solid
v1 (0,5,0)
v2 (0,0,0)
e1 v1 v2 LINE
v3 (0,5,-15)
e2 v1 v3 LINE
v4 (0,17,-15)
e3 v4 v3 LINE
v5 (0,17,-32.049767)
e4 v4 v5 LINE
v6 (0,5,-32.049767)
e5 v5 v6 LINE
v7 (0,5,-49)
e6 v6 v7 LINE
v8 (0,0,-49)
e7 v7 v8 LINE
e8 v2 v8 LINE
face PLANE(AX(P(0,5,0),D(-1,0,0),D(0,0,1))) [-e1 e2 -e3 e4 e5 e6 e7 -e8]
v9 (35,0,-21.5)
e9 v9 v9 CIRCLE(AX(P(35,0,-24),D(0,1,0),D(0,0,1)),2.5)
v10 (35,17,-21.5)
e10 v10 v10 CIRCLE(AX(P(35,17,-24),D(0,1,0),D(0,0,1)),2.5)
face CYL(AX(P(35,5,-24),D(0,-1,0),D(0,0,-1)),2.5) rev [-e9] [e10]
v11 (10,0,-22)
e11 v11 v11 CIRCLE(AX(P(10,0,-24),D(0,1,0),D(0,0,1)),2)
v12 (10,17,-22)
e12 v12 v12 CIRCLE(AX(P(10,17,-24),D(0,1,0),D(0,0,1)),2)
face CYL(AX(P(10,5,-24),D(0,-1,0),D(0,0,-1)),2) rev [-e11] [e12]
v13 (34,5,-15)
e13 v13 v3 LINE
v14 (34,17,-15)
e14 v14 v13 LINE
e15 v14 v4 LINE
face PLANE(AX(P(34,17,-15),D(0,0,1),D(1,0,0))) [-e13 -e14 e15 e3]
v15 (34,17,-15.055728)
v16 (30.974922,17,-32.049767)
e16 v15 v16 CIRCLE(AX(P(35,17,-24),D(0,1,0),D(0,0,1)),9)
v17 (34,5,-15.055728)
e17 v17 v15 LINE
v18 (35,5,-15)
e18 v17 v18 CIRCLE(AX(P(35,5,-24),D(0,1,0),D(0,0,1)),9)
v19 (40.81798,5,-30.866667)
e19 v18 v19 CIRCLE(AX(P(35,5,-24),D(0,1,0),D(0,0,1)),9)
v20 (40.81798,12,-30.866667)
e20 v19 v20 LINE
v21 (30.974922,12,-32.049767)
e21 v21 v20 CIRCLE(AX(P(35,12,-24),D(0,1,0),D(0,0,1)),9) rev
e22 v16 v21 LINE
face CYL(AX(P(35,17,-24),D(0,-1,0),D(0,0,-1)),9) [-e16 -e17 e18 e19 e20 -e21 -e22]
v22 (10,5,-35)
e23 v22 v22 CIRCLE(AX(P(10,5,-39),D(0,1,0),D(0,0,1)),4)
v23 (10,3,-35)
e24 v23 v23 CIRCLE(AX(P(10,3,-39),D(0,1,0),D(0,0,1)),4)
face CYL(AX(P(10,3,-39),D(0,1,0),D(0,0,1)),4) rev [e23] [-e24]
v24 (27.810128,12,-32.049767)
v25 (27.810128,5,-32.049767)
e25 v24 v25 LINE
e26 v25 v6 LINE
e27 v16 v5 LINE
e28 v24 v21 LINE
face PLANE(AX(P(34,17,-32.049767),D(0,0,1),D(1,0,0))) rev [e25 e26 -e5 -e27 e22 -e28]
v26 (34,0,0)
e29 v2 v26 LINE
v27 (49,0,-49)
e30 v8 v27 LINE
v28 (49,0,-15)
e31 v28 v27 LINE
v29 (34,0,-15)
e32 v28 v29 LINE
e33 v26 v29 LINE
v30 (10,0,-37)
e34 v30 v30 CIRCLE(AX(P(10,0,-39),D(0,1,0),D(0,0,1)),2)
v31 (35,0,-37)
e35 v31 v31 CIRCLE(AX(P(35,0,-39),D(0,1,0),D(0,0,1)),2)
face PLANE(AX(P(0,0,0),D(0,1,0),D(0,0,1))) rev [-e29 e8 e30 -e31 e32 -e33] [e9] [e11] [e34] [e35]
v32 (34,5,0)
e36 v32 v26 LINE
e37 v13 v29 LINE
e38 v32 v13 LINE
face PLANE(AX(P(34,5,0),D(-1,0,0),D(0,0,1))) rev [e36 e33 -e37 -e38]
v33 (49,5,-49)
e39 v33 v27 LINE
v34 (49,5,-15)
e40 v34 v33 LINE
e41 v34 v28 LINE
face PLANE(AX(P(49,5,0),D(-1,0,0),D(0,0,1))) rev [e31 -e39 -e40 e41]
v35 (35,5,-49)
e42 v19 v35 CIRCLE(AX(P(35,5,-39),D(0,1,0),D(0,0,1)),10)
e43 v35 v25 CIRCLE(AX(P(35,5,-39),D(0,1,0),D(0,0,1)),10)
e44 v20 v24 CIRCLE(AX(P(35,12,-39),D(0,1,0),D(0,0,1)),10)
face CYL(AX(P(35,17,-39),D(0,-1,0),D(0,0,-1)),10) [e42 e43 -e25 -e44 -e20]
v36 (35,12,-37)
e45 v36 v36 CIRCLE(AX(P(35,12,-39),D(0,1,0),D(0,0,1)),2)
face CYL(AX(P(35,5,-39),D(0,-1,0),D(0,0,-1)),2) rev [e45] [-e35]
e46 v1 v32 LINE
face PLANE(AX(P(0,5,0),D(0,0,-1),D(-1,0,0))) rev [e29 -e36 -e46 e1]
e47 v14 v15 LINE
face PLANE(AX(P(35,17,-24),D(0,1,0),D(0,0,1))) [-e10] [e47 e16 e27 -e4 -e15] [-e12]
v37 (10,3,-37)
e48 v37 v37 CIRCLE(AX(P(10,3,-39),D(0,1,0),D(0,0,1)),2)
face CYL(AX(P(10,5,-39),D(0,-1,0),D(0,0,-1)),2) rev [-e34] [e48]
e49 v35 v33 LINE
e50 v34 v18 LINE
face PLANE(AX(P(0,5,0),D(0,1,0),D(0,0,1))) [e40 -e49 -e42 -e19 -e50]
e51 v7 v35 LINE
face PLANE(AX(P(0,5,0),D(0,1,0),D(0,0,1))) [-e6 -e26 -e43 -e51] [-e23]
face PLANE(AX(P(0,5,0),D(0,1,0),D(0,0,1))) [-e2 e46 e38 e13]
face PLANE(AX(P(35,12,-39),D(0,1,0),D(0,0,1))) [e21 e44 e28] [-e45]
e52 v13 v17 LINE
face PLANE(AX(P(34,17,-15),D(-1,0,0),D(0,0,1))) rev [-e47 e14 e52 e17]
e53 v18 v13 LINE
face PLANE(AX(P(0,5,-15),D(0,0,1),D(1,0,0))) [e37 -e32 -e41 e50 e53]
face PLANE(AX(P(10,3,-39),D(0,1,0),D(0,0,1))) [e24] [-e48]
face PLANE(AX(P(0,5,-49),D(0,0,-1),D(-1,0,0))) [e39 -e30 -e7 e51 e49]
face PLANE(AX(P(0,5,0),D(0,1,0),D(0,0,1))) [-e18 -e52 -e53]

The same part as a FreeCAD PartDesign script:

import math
import FreeCAD as App
import Part
import Sketcher
from FreeCAD import Vector
Q = App.Units.Quantity


def add_polygon(sketch, points):
    """Adds a closed chain of lines whose ends are joined by coincident constraints."""
    first, n = sketch.GeometryCount, len(points)
    for a, b in zip(points, points[1:] + points[:1]):
        sketch.addGeometry(Part.LineSegment(App.Vector(*a, 0), App.Vector(*b, 0)), False)
    for i in range(n):
        sketch.addConstraint(Sketcher.Constraint("Coincident", first + i, 2, first + (i + 1) % n, 1))

doc = App.newDocument("Part")
body = doc.addObject("PartDesign::Body", "Body")

# Sketch on XZ plane
sketch1 = body.newObject("Sketcher::SketchObject", "Sketch")
sketch1.AttachmentSupport = (doc.getObject("XZ_Plane"), [""])
sketch1.MapMode = "FlatFace"
add_polygon(sketch1, [(0, -49), (0, 0), (34, 0), (34, -15), (49, -15), (49, -49)])  # lines 0-5
sketch1.addGeometry(Part.Circle(Vector(10, -24, 0), Vector(0, 0, 1), 2), False)  # 6
sketch1.addGeometry(Part.Circle(Vector(35, -24, 0), Vector(0, 0, 1), 2.5), False)  # 7
sketch1.addGeometry(Part.Circle(Vector(10, -39, 0), Vector(0, 0, 1), 2), False)  # 8
sketch1.addGeometry(Part.Circle(Vector(35, -39, 0), Vector(0, 0, 1), 2), False)  # 9
sketch1.addConstraint(Sketcher.Constraint("Vertical", 0))
sketch1.addConstraint(Sketcher.Constraint("Horizontal", 1))
sketch1.addConstraint(Sketcher.Constraint("Vertical", 2))
sketch1.addConstraint(Sketcher.Constraint("Horizontal", 3))
sketch1.addConstraint(Sketcher.Constraint("Vertical", 4))
sketch1.addConstraint(Sketcher.Constraint("Horizontal", 5))
sketch1.addConstraint(Sketcher.Constraint("Coincident", 0, 2, -1, 1))
sketch1.addConstraint(Sketcher.Constraint("Equal", 6, 8))
sketch1.addConstraint(Sketcher.Constraint("Equal", 8, 9))
sketch1.addConstraint(Sketcher.Constraint("Horizontal", 6, 3, 7, 3))
sketch1.addConstraint(Sketcher.Constraint("Horizontal", 8, 3, 9, 3))
sketch1.addConstraint(Sketcher.Constraint("Vertical", 6, 3, 8, 3))
sketch1.addConstraint(Sketcher.Constraint("Vertical", 7, 3, 9, 3))
sketch1.addConstraint(Sketcher.Constraint("Equal", 5, 0))
sketch1.addConstraint(Sketcher.Constraint("Equal", 3, 2))
sketch1.addConstraint(Sketcher.Constraint("Diameter", 6, Q("4 mm")))
sketch1.addConstraint(Sketcher.Constraint("Diameter", 7, Q("5 mm")))
sketch1.addConstraint(Sketcher.Constraint("DistanceX", 1, 1, 1, 2, Q("34 mm")))
sketch1.addConstraint(Sketcher.Constraint("DistanceX", 3, 1, 3, 2, Q("15 mm")))
sketch1.addConstraint(Sketcher.Constraint("DistanceX", -1, 1, 6, 3, Q("10 mm")))
sketch1.addConstraint(Sketcher.Constraint("DistanceY", 6, 3, -1, 1, Q("24 mm")))
sketch1.addConstraint(Sketcher.Constraint("DistanceX", -1, 1, 7, 3, Q("35 mm")))
sketch1.addConstraint(Sketcher.Constraint("DistanceY", 8, 3, -1, 1, Q("39 mm")))
pad1 = body.newObject("PartDesign::Pad", "Pad")
pad1.Profile = sketch1
pad1.Length = 5
pad1.Reversed = True

# Sketch on XZ plane
sketch2 = body.newObject("Sketcher::SketchObject", "Sketch001")
sketch2.AttachmentSupport = (doc.getObject("XZ_Plane"), [""])
sketch2.MapMode = "FlatFace"
sketch2.AttachmentOffset = App.Placement(Vector(0, 0, -5), App.Rotation())
sketch2.addGeometry(Part.Circle(Vector(10, -39, 0), Vector(0, 0, 1), 4), False)
sketch2.addConstraint(Sketcher.Constraint("Diameter", 0, Q("8 mm")))
sketch2.addConstraint(Sketcher.Constraint("DistanceX", -1, 1, 0, 3, Q("10 mm")))
sketch2.addConstraint(Sketcher.Constraint("DistanceY", 0, 3, -1, 1, Q("39 mm")))
pocket1 = body.newObject("PartDesign::Pocket", "Pocket")
pocket1.Profile = sketch2
pocket1.Length = 2
pocket1.Reversed = True

# Sketch on XZ plane
sketch3 = body.newObject("Sketcher::SketchObject", "Sketch002")
sketch3.AttachmentSupport = (doc.getObject("XZ_Plane"), [""])
sketch3.MapMode = "FlatFace"
sketch3.AttachmentOffset = App.Placement(Vector(0, 0, -5), App.Rotation())
sketch3.addGeometry(Part.Circle(Vector(35, -39, 0), Vector(0, 0, 1), 10), False)
sketch3.addConstraint(Sketcher.Constraint("Diameter", 0, Q("20 mm")))
sketch3.addConstraint(Sketcher.Constraint("DistanceX", -1, 1, 0, 3, Q("35 mm")))
sketch3.addConstraint(Sketcher.Constraint("DistanceY", 0, 3, -1, 1, Q("39 mm")))
pad2 = body.newObject("PartDesign::Pad", "Pad001")
pad2.Profile = sketch3
pad2.Length = 12
pad2.Reversed = True

# Sketch on XZ plane
sketch4 = body.newObject("Sketcher::SketchObject", "Sketch003")
sketch4.AttachmentSupport = (doc.getObject("XZ_Plane"), [""])
sketch4.MapMode = "FlatFace"
sketch4.AttachmentOffset = App.Placement(Vector(0, 0, -5), App.Rotation())
sketch4.addGeometry(Part.Circle(Vector(35, -39, 0), Vector(0, 0, 1), 2), False)
sketch4.addConstraint(Sketcher.Constraint("Diameter", 0, Q("4 mm")))
sketch4.addConstraint(Sketcher.Constraint("DistanceX", -1, 1, 0, 3, Q("35 mm")))
sketch4.addConstraint(Sketcher.Constraint("DistanceY", 0, 3, -1, 1, Q("39 mm")))
pocket2 = body.newObject("PartDesign::Pocket", "Pocket001")
pocket2.Profile = sketch4
pocket2.Length = 12

# Sketch on XZ plane
sketch5 = body.newObject("Sketcher::SketchObject", "Sketch004")
sketch5.AttachmentSupport = (doc.getObject("XZ_Plane"), [""])
sketch5.MapMode = "FlatFace"
sketch5.AttachmentOffset = App.Placement(Vector(0, 0, -17), App.Rotation())
sketch5.addGeometry(Part.Circle(Vector(35, -39, 0), Vector(0, 0, 1), 10), False)
sketch5.addGeometry(Part.Circle(Vector(35, -39, 0), Vector(0, 0, 1), 2), False)
sketch5.addConstraint(Sketcher.Constraint("Coincident", 1, 3, 0, 3))
sketch5.addConstraint(Sketcher.Constraint("Diameter", 0, Q("20 mm")))
sketch5.addConstraint(Sketcher.Constraint("Diameter", 1, Q("4 mm")))
sketch5.addConstraint(Sketcher.Constraint("DistanceX", -1, 1, 0, 3, Q("35 mm")))
sketch5.addConstraint(Sketcher.Constraint("DistanceY", 0, 3, -1, 1, Q("39 mm")))
pocket3 = body.newObject("PartDesign::Pocket", "Pocket002")
pocket3.Profile = sketch5
pocket3.Length = 5
pocket3.Reversed = True

# Sketch on XZ plane
sketch6 = body.newObject("Sketcher::SketchObject", "Sketch005")
sketch6.AttachmentSupport = (doc.getObject("XZ_Plane"), [""])
sketch6.MapMode = "FlatFace"
sketch6.AttachmentOffset = App.Placement(Vector(0, 0, -5), App.Rotation())
sketch6.addGeometry(Part.Circle(Vector(35, -24, 0), Vector(0, 0, 1), 9), False)
sketch6.addGeometry(Part.Circle(Vector(35, -24, 0), Vector(0, 0, 1), 2.5), False)
sketch6.addConstraint(Sketcher.Constraint("Coincident", 1, 3, 0, 3))
sketch6.addConstraint(Sketcher.Constraint("Diameter", 0, Q("18 mm")))
sketch6.addConstraint(Sketcher.Constraint("Diameter", 1, Q("5 mm")))
sketch6.addConstraint(Sketcher.Constraint("DistanceX", -1, 1, 0, 3, Q("35 mm")))
sketch6.addConstraint(Sketcher.Constraint("DistanceY", 0, 3, -1, 1, Q("24 mm")))
pad3 = body.newObject("PartDesign::Pad", "Pad002")
pad3.Profile = sketch6
pad3.Length = 12
pad3.Reversed = True

# Sketch on XZ plane
sketch7 = body.newObject("Sketcher::SketchObject", "Sketch006")
sketch7.AttachmentSupport = (doc.getObject("XZ_Plane"), [""])
sketch7.MapMode = "FlatFace"
sketch7.AttachmentOffset = App.Placement(Vector(0, 0, -5), App.Rotation())
sketch7.addGeometry(Part.ArcOfCircle(Part.Circle(Vector(35, -24, 0), Vector(0, 0, 1), 2.29968), math.radians(-115.775313), math.radians(115.775313)), False)
sketch7.addGeometry(Part.LineSegment(Vector(34, -26.070876, 0), Vector(34, -32.049767, 0)), False)
sketch7.addGeometry(Part.LineSegment(Vector(34, -32.049767, 0), Vector(0, -32.049767, 0)), False)
sketch7.addGeometry(Part.LineSegment(Vector(0, -32.049767, 0), Vector(0, -15, 0)), False)
sketch7.addGeometry(Part.LineSegment(Vector(0, -15, 0), Vector(34, -15, 0)), False)
sketch7.addGeometry(Part.LineSegment(Vector(34, -15, 0), Vector(34, -21.929124, 0)), False)
sketch7.addGeometry(Part.Circle(Vector(10, -24, 0), Vector(0, 0, 1), 2), False)
sketch7.addConstraint(Sketcher.Constraint("Coincident", 0, 1, 1, 1))
sketch7.addConstraint(Sketcher.Constraint("Coincident", 1, 2, 2, 1))
sketch7.addConstraint(Sketcher.Constraint("Coincident", 2, 2, 3, 1))
sketch7.addConstraint(Sketcher.Constraint("Coincident", 3, 2, 4, 1))
sketch7.addConstraint(Sketcher.Constraint("Coincident", 4, 2, 5, 1))
sketch7.addConstraint(Sketcher.Constraint("Coincident", 5, 2, 0, 2))
sketch7.addConstraint(Sketcher.Constraint("Vertical", 1))
sketch7.addConstraint(Sketcher.Constraint("Horizontal", 2))
sketch7.addConstraint(Sketcher.Constraint("Vertical", 3))
sketch7.addConstraint(Sketcher.Constraint("Horizontal", 4))
sketch7.addConstraint(Sketcher.Constraint("Vertical", 5))
sketch7.addConstraint(Sketcher.Constraint("PointOnObject", 2, 2, -2))
sketch7.addConstraint(Sketcher.Constraint("Horizontal", 0, 3, 6, 3))
sketch7.addConstraint(Sketcher.Constraint("Vertical", 1, 2, 4, 2))
sketch7.addConstraint(Sketcher.Constraint("Diameter", 6, Q("4 mm")))
sketch7.addConstraint(Sketcher.Constraint("DistanceX", 2, 2, 2, 1, Q("34 mm")))
sketch7.addConstraint(Sketcher.Constraint("DistanceX", -1, 1, 0, 3, Q("35 mm")))
sketch7.addConstraint(Sketcher.Constraint("DistanceY", 0, 3, -1, 1, Q("24 mm")))
sketch7.addConstraint(Sketcher.Constraint("DistanceX", -1, 1, 6, 3, Q("10 mm")))
sketch7.addConstraint(Sketcher.Constraint("DistanceY", 3, 2, -1, 1, Q("15 mm")))
sketch7.addConstraint(Sketcher.Constraint("Radius", 0, Q("2.29968 mm")))
sketch7.addConstraint(Sketcher.Constraint("DistanceY", 1, 2, 1, 1, Q("5.978891 mm")))
pad4 = body.newObject("PartDesign::Pad", "Pad003")
pad4.Profile = sketch7
pad4.Length = 12
pad4.Reversed = True

# Sketch on XZ plane
sketch8 = body.newObject("Sketcher::SketchObject", "Sketch007")
sketch8.AttachmentSupport = (doc.getObject("XZ_Plane"), [""])
sketch8.MapMode = "FlatFace"
sketch8.AttachmentOffset = App.Placement(Vector(0, 0, -17), App.Rotation())
sketch8.addGeometry(Part.Circle(Vector(35, -24, 0), Vector(0, 0, 1), 2.5), False)
sketch8.addConstraint(Sketcher.Constraint("Diameter", 0, Q("5 mm")))
sketch8.addConstraint(Sketcher.Constraint("DistanceX", -1, 1, 0, 3, Q("35 mm")))
sketch8.addConstraint(Sketcher.Constraint("DistanceY", 0, 3, -1, 1, Q("24 mm")))
pocket4 = body.newObject("PartDesign::Pocket", "Pocket003")
pocket4.Profile = sketch8
pocket4.Length = 27
pocket4.Reversed = True

doc.recompute()
